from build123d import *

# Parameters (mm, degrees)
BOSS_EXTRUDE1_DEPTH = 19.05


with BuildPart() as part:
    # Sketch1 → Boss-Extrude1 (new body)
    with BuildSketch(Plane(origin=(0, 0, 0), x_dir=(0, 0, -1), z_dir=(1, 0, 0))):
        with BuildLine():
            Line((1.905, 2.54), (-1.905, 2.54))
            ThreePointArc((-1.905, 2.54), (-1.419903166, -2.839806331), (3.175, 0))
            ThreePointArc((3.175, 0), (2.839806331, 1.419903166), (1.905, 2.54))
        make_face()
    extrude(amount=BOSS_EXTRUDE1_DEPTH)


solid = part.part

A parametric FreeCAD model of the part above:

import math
import FreeCAD as App
import Part
import Sketcher

V = App.Vector
Q = App.Units.Quantity

doc = App.newDocument("Part")
body = doc.addObject("PartDesign::Body", "Body")

# Sketch on YZ plane
sketch1 = body.newObject("Sketcher::SketchObject", "Sketch")
sketch1.AttachmentSupport = (doc.getObject("YZ_Plane"), [""])
sketch1.MapMode = "FlatFace"
sketch1.addGeometry([
    Part.LineSegment(V(2.54, -1.905, 0), V(2.54, 1.905, 0)),
    Part.ArcOfCircle(Part.Circle(V(0, 0, 0), V(0, 0, 1), 3.175), math.radians(36.869898), math.radians(270)),
    Part.ArcOfCircle(Part.Circle(V(0, 0, 0), V(0, 0, 1), 3.175), math.radians(-90), math.radians(-36.869898)),
], False)
sketch1.addConstraint([
    Sketcher.Constraint("Coincident", 0, 2, 1, 1),
    Sketcher.Constraint("Tangent", 1, 2, 2, 1),
    Sketcher.Constraint("Coincident", 2, 2, 0, 1),
    Sketcher.Constraint("Vertical", 0),
    Sketcher.Constraint("Coincident", 1, 3, -1, 1),
    Sketcher.Constraint("Equal", 1, 2),
    Sketcher.Constraint("PointOnObject", 1, 2, -2),
    Sketcher.Constraint("Radius", 1, Q("0.125 in")),
    Sketcher.Constraint("DistanceY", 0, 1, 0, 2, Q("0.15 in")),
])
pad1 = body.newObject("PartDesign::Pad", "Pad")
pad1.Profile = sketch1
pad1.Length = Q("0.75 in")

doc.recompute()
